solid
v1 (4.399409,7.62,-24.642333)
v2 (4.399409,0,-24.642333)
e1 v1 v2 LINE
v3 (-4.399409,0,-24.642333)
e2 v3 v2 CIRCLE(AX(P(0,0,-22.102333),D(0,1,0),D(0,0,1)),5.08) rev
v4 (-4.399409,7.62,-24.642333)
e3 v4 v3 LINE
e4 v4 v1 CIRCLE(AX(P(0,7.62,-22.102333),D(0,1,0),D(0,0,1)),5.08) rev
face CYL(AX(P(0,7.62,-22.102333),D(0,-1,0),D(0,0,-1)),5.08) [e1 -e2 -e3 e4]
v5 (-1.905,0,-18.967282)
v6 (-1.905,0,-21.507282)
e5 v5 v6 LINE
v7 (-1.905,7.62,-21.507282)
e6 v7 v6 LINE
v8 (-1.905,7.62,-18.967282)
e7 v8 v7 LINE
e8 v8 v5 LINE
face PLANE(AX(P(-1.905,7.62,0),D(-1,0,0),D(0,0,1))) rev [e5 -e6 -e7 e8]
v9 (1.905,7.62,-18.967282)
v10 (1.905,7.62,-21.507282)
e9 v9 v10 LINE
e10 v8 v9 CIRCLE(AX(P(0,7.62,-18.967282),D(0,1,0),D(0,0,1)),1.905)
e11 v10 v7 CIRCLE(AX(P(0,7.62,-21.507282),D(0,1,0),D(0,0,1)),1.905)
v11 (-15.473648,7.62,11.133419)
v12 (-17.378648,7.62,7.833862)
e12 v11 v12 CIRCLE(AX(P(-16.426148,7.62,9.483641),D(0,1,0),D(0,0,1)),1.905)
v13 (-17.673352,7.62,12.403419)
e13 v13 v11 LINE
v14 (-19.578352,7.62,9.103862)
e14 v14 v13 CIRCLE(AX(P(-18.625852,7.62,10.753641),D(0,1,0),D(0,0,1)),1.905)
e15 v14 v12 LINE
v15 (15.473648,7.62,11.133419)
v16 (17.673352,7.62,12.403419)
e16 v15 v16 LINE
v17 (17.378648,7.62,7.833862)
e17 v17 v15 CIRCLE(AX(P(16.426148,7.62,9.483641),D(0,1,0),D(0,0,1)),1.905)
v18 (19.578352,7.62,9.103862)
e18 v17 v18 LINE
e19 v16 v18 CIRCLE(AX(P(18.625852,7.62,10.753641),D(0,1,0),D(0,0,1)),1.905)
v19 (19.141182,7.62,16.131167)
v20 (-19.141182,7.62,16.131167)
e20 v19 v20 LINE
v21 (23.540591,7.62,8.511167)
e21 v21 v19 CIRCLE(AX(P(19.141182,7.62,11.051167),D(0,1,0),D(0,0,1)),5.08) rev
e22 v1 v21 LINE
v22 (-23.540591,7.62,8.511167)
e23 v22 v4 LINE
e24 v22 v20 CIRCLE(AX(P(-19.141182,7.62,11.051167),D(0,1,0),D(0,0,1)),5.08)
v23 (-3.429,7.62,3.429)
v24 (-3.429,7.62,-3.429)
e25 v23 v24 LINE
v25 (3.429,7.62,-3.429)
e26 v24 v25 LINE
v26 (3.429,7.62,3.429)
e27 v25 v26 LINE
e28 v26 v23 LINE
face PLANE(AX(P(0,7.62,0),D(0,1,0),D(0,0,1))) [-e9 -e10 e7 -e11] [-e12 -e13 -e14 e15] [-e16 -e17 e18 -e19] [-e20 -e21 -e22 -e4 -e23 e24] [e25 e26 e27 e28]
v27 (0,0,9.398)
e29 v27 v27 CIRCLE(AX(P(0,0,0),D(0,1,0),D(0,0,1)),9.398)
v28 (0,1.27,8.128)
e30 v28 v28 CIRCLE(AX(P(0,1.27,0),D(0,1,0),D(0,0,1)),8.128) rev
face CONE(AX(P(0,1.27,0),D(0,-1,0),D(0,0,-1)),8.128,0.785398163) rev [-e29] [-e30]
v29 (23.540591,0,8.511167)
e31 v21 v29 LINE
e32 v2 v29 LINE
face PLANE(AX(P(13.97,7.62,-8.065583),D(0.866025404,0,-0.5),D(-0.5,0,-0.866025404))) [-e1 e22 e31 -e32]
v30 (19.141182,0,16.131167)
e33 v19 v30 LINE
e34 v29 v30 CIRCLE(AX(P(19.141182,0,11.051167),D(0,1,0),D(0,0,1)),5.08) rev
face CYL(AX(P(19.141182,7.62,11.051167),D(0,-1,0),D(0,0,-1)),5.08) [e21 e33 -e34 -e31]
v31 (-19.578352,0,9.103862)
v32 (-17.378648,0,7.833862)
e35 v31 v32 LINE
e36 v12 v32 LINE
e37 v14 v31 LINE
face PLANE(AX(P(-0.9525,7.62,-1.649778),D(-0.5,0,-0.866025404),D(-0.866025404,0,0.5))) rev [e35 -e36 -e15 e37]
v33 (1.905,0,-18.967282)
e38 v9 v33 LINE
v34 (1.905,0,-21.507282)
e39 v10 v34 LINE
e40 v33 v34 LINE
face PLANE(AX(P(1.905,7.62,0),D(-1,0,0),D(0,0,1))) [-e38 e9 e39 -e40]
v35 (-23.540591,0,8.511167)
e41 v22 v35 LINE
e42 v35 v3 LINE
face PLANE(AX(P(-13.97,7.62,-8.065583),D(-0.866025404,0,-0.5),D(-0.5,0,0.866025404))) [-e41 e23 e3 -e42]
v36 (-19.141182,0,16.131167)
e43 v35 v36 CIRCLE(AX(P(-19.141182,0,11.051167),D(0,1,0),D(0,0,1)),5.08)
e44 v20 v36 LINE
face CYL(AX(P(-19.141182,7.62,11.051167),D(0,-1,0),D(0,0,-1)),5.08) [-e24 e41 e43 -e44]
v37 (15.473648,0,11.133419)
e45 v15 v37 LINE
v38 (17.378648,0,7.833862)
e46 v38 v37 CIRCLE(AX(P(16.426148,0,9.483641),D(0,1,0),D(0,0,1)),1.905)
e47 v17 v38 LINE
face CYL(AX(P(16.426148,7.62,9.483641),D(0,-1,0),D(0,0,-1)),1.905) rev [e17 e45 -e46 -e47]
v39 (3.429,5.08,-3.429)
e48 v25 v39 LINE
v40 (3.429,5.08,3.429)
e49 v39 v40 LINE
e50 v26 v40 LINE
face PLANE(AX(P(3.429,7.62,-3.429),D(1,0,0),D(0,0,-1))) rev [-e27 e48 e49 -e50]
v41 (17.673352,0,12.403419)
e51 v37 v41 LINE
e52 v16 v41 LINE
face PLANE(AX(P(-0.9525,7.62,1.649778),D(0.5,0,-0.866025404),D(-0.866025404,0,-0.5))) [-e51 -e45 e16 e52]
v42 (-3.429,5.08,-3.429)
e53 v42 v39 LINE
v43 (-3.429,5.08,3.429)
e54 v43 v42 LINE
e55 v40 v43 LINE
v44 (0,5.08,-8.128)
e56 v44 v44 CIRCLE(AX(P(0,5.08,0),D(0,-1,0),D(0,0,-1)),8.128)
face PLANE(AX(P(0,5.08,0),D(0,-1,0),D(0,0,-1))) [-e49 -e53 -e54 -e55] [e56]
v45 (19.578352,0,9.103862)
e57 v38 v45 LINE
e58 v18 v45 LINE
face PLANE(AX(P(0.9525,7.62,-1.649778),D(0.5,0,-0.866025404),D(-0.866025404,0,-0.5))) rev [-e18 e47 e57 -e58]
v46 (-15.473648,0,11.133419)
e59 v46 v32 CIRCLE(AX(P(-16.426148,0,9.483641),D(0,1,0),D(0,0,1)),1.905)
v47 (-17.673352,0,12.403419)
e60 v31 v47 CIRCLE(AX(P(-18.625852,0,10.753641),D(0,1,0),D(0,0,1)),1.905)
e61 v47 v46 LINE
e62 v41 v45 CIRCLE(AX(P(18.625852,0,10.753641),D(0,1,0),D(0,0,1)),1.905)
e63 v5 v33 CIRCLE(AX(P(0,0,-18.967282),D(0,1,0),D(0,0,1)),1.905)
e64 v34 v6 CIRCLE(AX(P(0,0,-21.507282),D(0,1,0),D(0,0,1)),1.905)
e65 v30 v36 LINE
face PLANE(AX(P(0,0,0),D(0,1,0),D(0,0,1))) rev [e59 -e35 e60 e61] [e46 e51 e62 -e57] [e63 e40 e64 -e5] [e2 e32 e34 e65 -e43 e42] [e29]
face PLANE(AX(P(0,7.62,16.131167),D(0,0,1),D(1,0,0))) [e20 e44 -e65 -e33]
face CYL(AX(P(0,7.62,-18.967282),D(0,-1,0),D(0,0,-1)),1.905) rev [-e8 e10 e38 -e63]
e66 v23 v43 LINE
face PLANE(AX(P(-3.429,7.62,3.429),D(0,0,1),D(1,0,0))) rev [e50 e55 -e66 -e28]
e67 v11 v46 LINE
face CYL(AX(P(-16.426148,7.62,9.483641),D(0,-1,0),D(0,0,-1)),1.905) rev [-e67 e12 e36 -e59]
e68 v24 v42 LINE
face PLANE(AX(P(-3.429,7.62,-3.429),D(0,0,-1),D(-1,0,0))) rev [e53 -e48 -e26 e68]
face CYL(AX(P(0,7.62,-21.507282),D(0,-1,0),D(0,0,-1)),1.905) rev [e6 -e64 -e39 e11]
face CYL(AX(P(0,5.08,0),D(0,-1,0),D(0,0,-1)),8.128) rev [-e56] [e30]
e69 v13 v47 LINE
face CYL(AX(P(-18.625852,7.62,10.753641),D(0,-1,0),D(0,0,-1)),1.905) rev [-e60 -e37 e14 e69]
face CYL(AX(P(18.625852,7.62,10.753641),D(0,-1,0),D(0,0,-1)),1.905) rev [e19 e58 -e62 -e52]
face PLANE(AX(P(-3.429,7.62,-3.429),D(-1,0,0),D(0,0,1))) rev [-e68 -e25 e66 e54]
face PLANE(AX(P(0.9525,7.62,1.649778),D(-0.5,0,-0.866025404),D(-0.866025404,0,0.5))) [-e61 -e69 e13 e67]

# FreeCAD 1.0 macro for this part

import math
import FreeCAD as App
import Part
import Sketcher
Q = App.Units.Quantity


def edges_at(feature, points):
    """Names of the edges that pass closest to the given points."""
    edges = feature.Shape.Edges
    near = lambda p: min(range(len(edges)), key=lambda i: edges[i].distToShape(Part.Vertex(*p))[0])
    return sorted({f"Edge{near(p) + 1}" for p in points})

doc = App.newDocument("Part")
body = doc.addObject("PartDesign::Body", "Body")

sketch1 = doc.addObject("Sketcher::SketchObject", "Sketch")
body.addObject(sketch1)
sketch1.AttachmentSupport = (doc.XZ_Plane, [""])
sketch1.MapMode = "FlatFace"
sketch1.addGeometry([
    Part.ArcOfCircle(Part.Circle(App.Vector(0, -22.102333, 0), App.Vector(0, 0, 1), 5.08), math.radians(-150), math.radians(-30)),
    Part.LineSegment(App.Vector(-4.399409, -24.642333, 0), App.Vector(-23.540591, 8.511167, 0)),
    Part.ArcOfCircle(Part.Circle(App.Vector(-19.141182, 11.051167, 0), App.Vector(0, 0, 1), 5.08), math.radians(90), math.radians(210)),
    Part.LineSegment(App.Vector(-19.141182, 16.131167, 0), App.Vector(19.141182, 16.131167, 0)),
    Part.ArcOfCircle(Part.Circle(App.Vector(19.141182, 11.051167, 0), App.Vector(0, 0, 1), 5.08), math.radians(-30), math.radians(90)),
    Part.LineSegment(App.Vector(23.540591, 8.511167, 0), App.Vector(4.399409, -24.642333, 0)),
    Part.LineSegment(App.Vector(17.673352, 12.403419, 0), App.Vector(15.473648, 11.133419, 0)),
    Part.ArcOfCircle(Part.Circle(App.Vector(16.426148, 9.483641, 0), App.Vector(0, 0, 1), 1.905), math.radians(120), math.radians(300)),
    Part.LineSegment(App.Vector(17.378648, 7.833862, 0), App.Vector(19.578352, 9.103862, 0)),
    Part.ArcOfCircle(Part.Circle(App.Vector(18.625852, 10.753641, 0), App.Vector(0, 0, 1), 1.905), math.radians(-60), math.radians(120)),
    Part.LineSegment(App.Vector(-15.473648, 11.133419, 0), App.Vector(-17.673352, 12.403419, 0)),
    Part.ArcOfCircle(Part.Circle(App.Vector(-18.625852, 10.753641, 0), App.Vector(0, 0, 1), 1.905), math.radians(60), math.radians(240)),
    Part.LineSegment(App.Vector(-19.578352, 9.103862, 0), App.Vector(-17.378648, 7.833862, 0)),
    Part.ArcOfCircle(Part.Circle(App.Vector(-16.426148, 9.483641, 0), App.Vector(0, 0, 1), 1.905), math.radians(-120), math.radians(60)),
    Part.Circle(App.Vector(0, 0, 0), App.Vector(0, 0, 1), 3.175),
    Part.LineSegment(App.Vector(1.905, -21.507282, 0), App.Vector(1.905, -18.967282, 0)),
    Part.ArcOfCircle(Part.Circle(App.Vector(0, -18.967282, 0), App.Vector(0, 0, 1), 1.905), math.radians(0), math.radians(180)),
    Part.LineSegment(App.Vector(-1.905, -18.967282, 0), App.Vector(-1.905, -21.507282, 0)),
    Part.ArcOfCircle(Part.Circle(App.Vector(0, -21.507282, 0), App.Vector(0, 0, 1), 1.905), math.radians(180), math.radians(360)),
], False)
sketch1.addConstraint([
    Sketcher.Constraint("Tangent", 0, 1, 1, 1),
    Sketcher.Constraint("Tangent", 1, 2, 2, 2),
    Sketcher.Constraint("Tangent", 2, 1, 3, 1),
    Sketcher.Constraint("Tangent", 3, 2, 4, 2),
    Sketcher.Constraint("Tangent", 4, 1, 5, 1),
    Sketcher.Constraint("Tangent", 5, 2, 0, 2),
    Sketcher.Constraint("Tangent", 6, 2, 7, 1),
    Sketcher.Constraint("Tangent", 7, 2, 8, 1),
    Sketcher.Constraint("Tangent", 8, 2, 9, 1),
    Sketcher.Constraint("Tangent", 9, 2, 6, 1),
    Sketcher.Constraint("Tangent", 10, 2, 11, 1),
    Sketcher.Constraint("Tangent", 11, 2, 12, 1),
    Sketcher.Constraint("Tangent", 12, 2, 13, 1),
    Sketcher.Constraint("Tangent", 13, 2, 10, 1),
    Sketcher.Constraint("Tangent", 15, 2, 16, 1),
    Sketcher.Constraint("Tangent", 16, 2, 17, 1),
    Sketcher.Constraint("Tangent", 17, 2, 18, 1),
    Sketcher.Constraint("Tangent", 18, 2, 15, 1),
    Sketcher.Constraint("Horizontal", 3),
    Sketcher.Constraint("Vertical", 15),
    Sketcher.Constraint("Vertical", 17),
    Sketcher.Constraint("Coincident", 14, 3, -1, 1),
    Sketcher.Constraint("Equal", 0, 2),
    Sketcher.Constraint("Equal", 2, 4),
    Sketcher.Constraint("Equal", 7, 9),
    Sketcher.Constraint("Equal", 9, 11),
    Sketcher.Constraint("Equal", 11, 13),
    Sketcher.Constraint("Equal", 13, 16),
    Sketcher.Constraint("Symmetric", 9, 3, 11, 3, -2),
    Sketcher.Constraint("Symmetric", 7, 3, 13, 3, -2),
    Sketcher.Constraint("Symmetric", 1, 2, 4, 1, -2),
    Sketcher.Constraint("PointOnObject", 16, 3, -2),
    Sketcher.Constraint("Perpendicular", 1, 6),
    Sketcher.Constraint("Radius", 0, Q("0.2 in")),
    Sketcher.Constraint("Diameter", 14, Q("0.25 in")),
    Sketcher.Constraint("DistanceY", 15, 1, 15, 2, Q("0.1 in")),
    Sketcher.Constraint("Angle", 1, Q("120 deg")),
    Sketcher.Constraint("Radius", 7, Q("0.075 in")),
    Sketcher.Constraint("Distance", 6, Q("0.1 in")),
    Sketcher.Constraint("DistanceX", 11, 3, 7, 3, Q("1.38 in")),
    Sketcher.Constraint("DistanceY", 0, 3, 2, 3, Q("33.1535 mm")),
    Sketcher.Constraint("DistanceY", -1, 1, 7, 3, Q("9.483641 mm")),
    Sketcher.Constraint("DistanceY", 16, 3, -1, 1, Q("18.967282 mm")),
    Sketcher.Constraint("DistanceY", 0, 3, 16, 3, Q("3.135051 mm")),
])
pad1 = doc.addObject("PartDesign::Pad", "Pad")
body.addObject(pad1)
pad1.Profile = sketch1
pad1.Length = Q("0.3 in")
pad1.Reversed = True

sketch2 = doc.addObject("Sketcher::SketchObject", "Sketch001")
body.addObject(sketch2)
sketch2.AttachmentSupport = (doc.XZ_Plane, [""])
sketch2.MapMode = "FlatFace"
sketch2.addGeometry(Part.Circle(App.Vector(0, 0, 0), App.Vector(0, 0, 1), 8.128), False)
sketch2.addConstraint([
    Sketcher.Constraint("Coincident", 0, 3, -1, 1),
    Sketcher.Constraint("Diameter", 0, Q("0.64 in")),
])
pocket1 = doc.addObject("PartDesign::Pocket", "Pocket")
body.addObject(pocket1)
pocket1.Profile = sketch2
pocket1.Length = Q("0.2 in")

sketch3 = doc.addObject("Sketcher::SketchObject", "Sketch002")
body.addObject(sketch3)
sketch3.AttachmentSupport = (doc.XZ_Plane, [""])
sketch3.MapMode = "FlatFace"
sketch3.addGeometry([
    Part.LineSegment(App.Vector(3.429, -3.429, 0), App.Vector(3.429, 3.429, 0)),
    Part.LineSegment(App.Vector(3.429, 3.429, 0), App.Vector(-3.429, 3.429, 0)),
    Part.LineSegment(App.Vector(-3.429, 3.429, 0), App.Vector(-3.429, -3.429, 0)),
    Part.LineSegment(App.Vector(-3.429, -3.429, 0), App.Vector(3.429, -3.429, 0)),
], False)
sketch3.addConstraint([
    Sketcher.Constraint("Coincident", 0, 2, 1, 1),
    Sketcher.Constraint("Coincident", 1, 2, 2, 1),
    Sketcher.Constraint("Coincident", 2, 2, 3, 1),
    Sketcher.Constraint("Coincident", 3, 2, 0, 1),
    Sketcher.Constraint("Vertical", 0),
    Sketcher.Constraint("Horizontal", 1),
    Sketcher.Constraint("Vertical", 2),
    Sketcher.Constraint("Horizontal", 3),
    Sketcher.Constraint("Symmetric", 0, 2, 2, 2, -1, 1),
    Sketcher.Constraint("Equal", 3, 0),
    Sketcher.Constraint("DistanceX", 1, 2, 1, 1, Q("0.27 in")),
])
pocket2 = doc.addObject("PartDesign::Pocket", "Pocket001")
body.addObject(pocket2)
pocket2.Profile = sketch3
pocket2.Type = "ThroughAll"
doc.recompute()

chamfer = doc.addObject("PartDesign::Chamfer", "Chamfer")
body.addObject(chamfer)
chamfer.Base = (pocket2, edges_at(pocket2, [(-8.128, 0, 0)]))
chamfer.Size = Q("0.05 in")

doc.recompute()
